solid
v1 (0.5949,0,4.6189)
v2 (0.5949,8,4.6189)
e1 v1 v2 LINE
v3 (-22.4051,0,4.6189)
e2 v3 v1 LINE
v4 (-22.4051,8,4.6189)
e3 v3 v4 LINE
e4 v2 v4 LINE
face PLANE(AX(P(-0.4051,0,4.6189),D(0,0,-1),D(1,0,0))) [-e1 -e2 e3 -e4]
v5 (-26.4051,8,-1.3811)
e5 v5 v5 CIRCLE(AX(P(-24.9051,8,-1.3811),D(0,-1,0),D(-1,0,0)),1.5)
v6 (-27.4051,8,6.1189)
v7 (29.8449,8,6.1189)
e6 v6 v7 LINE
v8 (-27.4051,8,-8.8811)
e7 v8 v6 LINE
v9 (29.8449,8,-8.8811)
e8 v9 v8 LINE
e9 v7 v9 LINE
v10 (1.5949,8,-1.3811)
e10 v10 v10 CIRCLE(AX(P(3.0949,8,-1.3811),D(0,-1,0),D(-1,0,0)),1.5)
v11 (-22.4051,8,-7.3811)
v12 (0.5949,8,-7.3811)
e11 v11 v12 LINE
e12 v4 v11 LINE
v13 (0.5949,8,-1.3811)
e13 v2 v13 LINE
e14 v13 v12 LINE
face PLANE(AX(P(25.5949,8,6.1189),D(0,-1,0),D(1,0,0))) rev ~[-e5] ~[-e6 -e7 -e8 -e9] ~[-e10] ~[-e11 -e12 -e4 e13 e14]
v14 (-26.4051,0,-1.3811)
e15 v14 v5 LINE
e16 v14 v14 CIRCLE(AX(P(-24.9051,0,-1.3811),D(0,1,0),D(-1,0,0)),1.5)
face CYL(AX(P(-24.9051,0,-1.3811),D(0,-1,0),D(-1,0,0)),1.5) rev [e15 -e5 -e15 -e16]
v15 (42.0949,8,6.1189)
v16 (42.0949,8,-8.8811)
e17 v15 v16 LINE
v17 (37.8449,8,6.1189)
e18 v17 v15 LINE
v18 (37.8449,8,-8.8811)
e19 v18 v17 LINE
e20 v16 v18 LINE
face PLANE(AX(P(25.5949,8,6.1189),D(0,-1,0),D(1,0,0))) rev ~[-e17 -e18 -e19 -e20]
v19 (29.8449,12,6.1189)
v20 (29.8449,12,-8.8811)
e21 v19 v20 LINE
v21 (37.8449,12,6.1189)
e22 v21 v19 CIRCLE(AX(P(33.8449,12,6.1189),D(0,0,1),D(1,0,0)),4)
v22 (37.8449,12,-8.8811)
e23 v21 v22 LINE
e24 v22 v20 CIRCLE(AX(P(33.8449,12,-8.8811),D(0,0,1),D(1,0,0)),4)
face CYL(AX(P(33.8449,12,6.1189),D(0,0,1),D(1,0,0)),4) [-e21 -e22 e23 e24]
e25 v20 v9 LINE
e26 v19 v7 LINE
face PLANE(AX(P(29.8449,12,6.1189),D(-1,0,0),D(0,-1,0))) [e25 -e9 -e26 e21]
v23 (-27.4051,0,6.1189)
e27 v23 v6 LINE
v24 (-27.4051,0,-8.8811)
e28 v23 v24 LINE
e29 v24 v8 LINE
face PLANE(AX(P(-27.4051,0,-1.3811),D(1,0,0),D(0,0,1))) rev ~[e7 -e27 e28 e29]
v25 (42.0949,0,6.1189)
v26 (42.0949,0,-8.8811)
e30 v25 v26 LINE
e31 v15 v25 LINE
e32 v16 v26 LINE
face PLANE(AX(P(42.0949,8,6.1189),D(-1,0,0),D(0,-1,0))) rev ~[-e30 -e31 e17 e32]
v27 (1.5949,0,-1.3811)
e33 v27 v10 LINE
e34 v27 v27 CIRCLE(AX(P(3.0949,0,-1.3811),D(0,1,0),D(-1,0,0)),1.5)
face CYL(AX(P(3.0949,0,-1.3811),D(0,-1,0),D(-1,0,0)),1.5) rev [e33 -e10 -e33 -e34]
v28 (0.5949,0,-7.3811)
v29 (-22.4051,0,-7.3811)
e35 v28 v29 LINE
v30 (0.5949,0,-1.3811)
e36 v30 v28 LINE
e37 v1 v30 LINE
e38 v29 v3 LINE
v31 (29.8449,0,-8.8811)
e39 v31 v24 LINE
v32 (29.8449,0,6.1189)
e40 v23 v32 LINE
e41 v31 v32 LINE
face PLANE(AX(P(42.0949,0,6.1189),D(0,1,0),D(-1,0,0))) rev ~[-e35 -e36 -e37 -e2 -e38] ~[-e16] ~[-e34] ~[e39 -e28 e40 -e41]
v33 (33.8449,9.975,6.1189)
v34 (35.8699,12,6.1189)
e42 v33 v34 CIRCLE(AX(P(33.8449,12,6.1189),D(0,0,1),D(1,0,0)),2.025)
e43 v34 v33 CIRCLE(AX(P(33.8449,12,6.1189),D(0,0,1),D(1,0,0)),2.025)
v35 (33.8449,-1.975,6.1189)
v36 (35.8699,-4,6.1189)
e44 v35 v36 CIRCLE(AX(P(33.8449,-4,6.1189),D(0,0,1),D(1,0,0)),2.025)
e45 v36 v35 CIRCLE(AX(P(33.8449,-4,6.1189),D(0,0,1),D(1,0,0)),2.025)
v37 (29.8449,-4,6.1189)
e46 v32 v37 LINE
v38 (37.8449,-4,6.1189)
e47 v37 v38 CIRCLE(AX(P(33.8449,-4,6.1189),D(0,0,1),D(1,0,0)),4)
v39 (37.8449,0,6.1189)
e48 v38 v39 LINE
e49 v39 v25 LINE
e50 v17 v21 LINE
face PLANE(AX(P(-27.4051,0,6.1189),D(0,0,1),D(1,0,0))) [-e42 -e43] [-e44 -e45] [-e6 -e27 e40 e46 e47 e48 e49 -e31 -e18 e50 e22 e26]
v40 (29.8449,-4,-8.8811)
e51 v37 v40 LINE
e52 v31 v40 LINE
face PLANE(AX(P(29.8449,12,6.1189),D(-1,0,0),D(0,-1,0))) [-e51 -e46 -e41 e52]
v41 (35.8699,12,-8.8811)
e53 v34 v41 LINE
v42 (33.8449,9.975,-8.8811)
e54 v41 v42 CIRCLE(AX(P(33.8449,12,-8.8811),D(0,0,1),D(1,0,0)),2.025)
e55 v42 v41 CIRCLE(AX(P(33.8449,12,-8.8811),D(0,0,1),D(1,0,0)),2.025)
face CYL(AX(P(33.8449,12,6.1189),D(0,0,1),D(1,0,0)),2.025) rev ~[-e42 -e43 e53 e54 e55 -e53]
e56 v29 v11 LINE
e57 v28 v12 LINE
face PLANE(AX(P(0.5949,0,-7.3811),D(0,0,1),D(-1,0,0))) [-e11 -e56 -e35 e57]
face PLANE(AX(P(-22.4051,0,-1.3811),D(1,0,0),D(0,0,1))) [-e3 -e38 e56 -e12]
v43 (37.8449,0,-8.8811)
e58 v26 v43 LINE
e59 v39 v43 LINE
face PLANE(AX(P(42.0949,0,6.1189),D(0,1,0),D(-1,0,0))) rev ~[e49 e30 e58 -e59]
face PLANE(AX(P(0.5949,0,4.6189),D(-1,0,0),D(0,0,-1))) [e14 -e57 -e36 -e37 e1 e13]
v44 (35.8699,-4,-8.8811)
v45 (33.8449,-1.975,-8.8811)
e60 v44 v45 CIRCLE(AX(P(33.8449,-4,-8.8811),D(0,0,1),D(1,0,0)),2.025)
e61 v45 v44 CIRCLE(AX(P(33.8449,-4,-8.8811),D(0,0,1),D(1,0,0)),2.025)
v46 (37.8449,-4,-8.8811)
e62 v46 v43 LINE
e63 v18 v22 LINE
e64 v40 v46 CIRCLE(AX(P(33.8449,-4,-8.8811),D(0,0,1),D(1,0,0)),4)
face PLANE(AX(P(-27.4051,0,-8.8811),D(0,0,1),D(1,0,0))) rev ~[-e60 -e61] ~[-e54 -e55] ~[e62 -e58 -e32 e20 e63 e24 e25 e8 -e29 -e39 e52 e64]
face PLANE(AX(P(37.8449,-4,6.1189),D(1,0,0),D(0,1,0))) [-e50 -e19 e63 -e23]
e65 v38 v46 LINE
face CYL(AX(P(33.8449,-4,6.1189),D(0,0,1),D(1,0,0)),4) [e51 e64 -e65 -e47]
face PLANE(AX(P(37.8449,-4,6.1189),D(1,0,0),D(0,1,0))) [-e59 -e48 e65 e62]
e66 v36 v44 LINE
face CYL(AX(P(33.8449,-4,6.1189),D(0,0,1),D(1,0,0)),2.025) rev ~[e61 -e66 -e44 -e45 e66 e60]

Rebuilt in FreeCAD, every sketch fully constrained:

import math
import FreeCAD as App
import Part
import Sketcher
from FreeCAD import Vector
Q = App.Units.Quantity

doc = App.newDocument("Part")
params = doc.addObject("Spreadsheet::Sheet", "Params")
for row, (alias, value) in enumerate([
    ("sketch1_diameter", "3 mm"),
    ("sketch1_width", "23 mm"),
    ("sketch1_height", "15 mm"),
    ("sketch1_height2", "12 mm"),
    ("sketch1_width2", "53 mm"),
    ("pad1_length", "8 mm"),
    ("sketch2_width", "16.5 mm"),
    ("sketch2_height", "8 mm"),
    ("pad2_length", "15 mm"),
    ("sketch3_radius", "4 mm"),
    ("sketch3_diameter", "4.05 mm"),
    ("sketch3_height", "16 mm"),
    ("pad3_length", "15 mm"),
], start=1):
    params.set(f"A{row}", alias)
    params.set(f"B{row}", "=" + value)
    params.setAlias(f"B{row}", alias)

body = doc.addObject("PartDesign::Body", "Body")

# Sketch on XZ plane
sketch1 = doc.addObject("Sketcher::SketchObject", "Sketch")
body.addObject(sketch1)
sketch1.AttachmentSupport = (doc.XZ_Plane, [""])
sketch1.MapMode = "FlatFace"
sketch1.addGeometry(Part.LineSegment(Vector(25.6, 6.1, 0), Vector(25.6, -8.9, 0)), False)
sketch1.addGeometry(Part.LineSegment(Vector(25.6, -8.9, 0), Vector(-27.4, -8.9, 0)), False)
sketch1.addGeometry(Part.LineSegment(Vector(-27.4, -8.9, 0), Vector(-27.4, 6.1, 0)), False)
sketch1.addGeometry(Part.LineSegment(Vector(-27.4, 6.1, 0), Vector(25.6, 6.1, 0)), False)
sketch1.addGeometry(Part.LineSegment(Vector(0.6, 4.6, 0), Vector(-22.4, 4.6, 0)), False)
sketch1.addGeometry(Part.LineSegment(Vector(-22.4, 4.6, 0), Vector(-22.4, -7.4, 0)), False)
sketch1.addGeometry(Part.LineSegment(Vector(-22.4, -7.4, 0), Vector(0.6, -7.4, 0)), False)
sketch1.addGeometry(Part.LineSegment(Vector(0.6, -7.4, 0), Vector(0.6, -1.4, 0)), False)
sketch1.addGeometry(Part.LineSegment(Vector(0.6, -1.4, 0), Vector(0.6, 4.6, 0)), False)
sketch1.addGeometry(Part.Circle(Vector(3.1, -1.4, 0), Vector(0, 0, 1), 1.5), False)
sketch1.addGeometry(Part.Circle(Vector(-24.9, -1.4, 0), Vector(0, 0, 1), 1.5), False)
sketch1.addConstraint(Sketcher.Constraint("Coincident", 0, 2, 1, 1))
sketch1.addConstraint(Sketcher.Constraint("Coincident", 1, 2, 2, 1))
sketch1.addConstraint(Sketcher.Constraint("Coincident", 2, 2, 3, 1))
sketch1.addConstraint(Sketcher.Constraint("Coincident", 3, 2, 0, 1))
sketch1.addConstraint(Sketcher.Constraint("Coincident", 4, 2, 5, 1))
sketch1.addConstraint(Sketcher.Constraint("Coincident", 5, 2, 6, 1))
sketch1.addConstraint(Sketcher.Constraint("Coincident", 6, 2, 7, 1))
sketch1.addConstraint(Sketcher.Constraint("Coincident", 7, 2, 8, 1))
sketch1.addConstraint(Sketcher.Constraint("Coincident", 8, 2, 4, 1))
sketch1.addConstraint(Sketcher.Constraint("Vertical", 0))
sketch1.addConstraint(Sketcher.Constraint("Horizontal", 1))
sketch1.addConstraint(Sketcher.Constraint("Vertical", 2))
sketch1.addConstraint(Sketcher.Constraint("Horizontal", 3))
sketch1.addConstraint(Sketcher.Constraint("Horizontal", 4))
sketch1.addConstraint(Sketcher.Constraint("Vertical", 5))
sketch1.addConstraint(Sketcher.Constraint("Horizontal", 6))
sketch1.addConstraint(Sketcher.Constraint("Vertical", 7))
sketch1.addConstraint(Sketcher.Constraint("Vertical", 8))
sketch1.addConstraint(Sketcher.Constraint("Equal", 9, 10))
sketch1.addConstraint(Sketcher.Constraint("Horizontal", 9, 3, 10, 3))
sketch1.addConstraint(Sketcher.Constraint("Horizontal", 10, 3, 7, 2))
sketch1.addConstraint(Sketcher.Constraint("Equal", 7, 8))
sketch1.addConstraint(Sketcher.Constraint("Diameter", 9, Q("3 mm")))
sketch1.addConstraint(Sketcher.Constraint("DistanceX", 4, 2, 4, 1, Q("23 mm")))
sketch1.addConstraint(Sketcher.Constraint("DistanceY", 0, 2, 0, 1, Q("15 mm")))
sketch1.addConstraint(Sketcher.Constraint("DistanceY", 5, 2, 5, 1, Q("12 mm")))
sketch1.addConstraint(Sketcher.Constraint("DistanceX", 2, 2, 4, 2, Q("5 mm")))
sketch1.addConstraint(Sketcher.Constraint("DistanceX", 1, 2, 1, 1, Q("53 mm")))
sketch1.addConstraint(Sketcher.Constraint("DistanceX", 10, 3, 9, 3, Q("28 mm")))
sketch1.addConstraint(Sketcher.Constraint("DistanceX", 9, 3, 0, 2, Q("22.5 mm")))
sketch1.addConstraint(Sketcher.Constraint("DistanceY", 0, 2, 9, 3, Q("7.5 mm")))
sketch1.addConstraint(Sketcher.Constraint("DistanceX", -1, 1, 9, 3, Q("3.095 mm")))
sketch1.addConstraint(Sketcher.Constraint("DistanceY", 9, 3, -1, 1, Q("1.381 mm")))
sketch1.setExpression("Constraints[22]", "Params.sketch1_diameter")
sketch1.setExpression("Constraints[23]", "Params.sketch1_width")
sketch1.setExpression("Constraints[24]", "Params.sketch1_height")
sketch1.setExpression("Constraints[25]", "Params.sketch1_height2")
sketch1.setExpression("Constraints[27]", "Params.sketch1_width2")
pad1 = doc.addObject("PartDesign::Pad", "Pad")
body.addObject(pad1)
pad1.Profile = sketch1
pad1.setExpression("Length", "Params.pad1_length")
pad1.Reversed = True

# Sketch on XY plane
sketch2 = doc.addObject("Sketcher::SketchObject", "Sketch001")
body.addObject(sketch2)
sketch2.AttachmentSupport = (doc.XY_Plane, [""])
sketch2.MapMode = "FlatFace"
sketch2.AttachmentOffset = App.Placement(Vector(0, 0, 6.1189), App.Rotation())
sketch2.addGeometry(Part.LineSegment(Vector(42, 8, 0), Vector(26, 8, 0)), False)
sketch2.addGeometry(Part.LineSegment(Vector(26, 8, 0), Vector(26, 0, 0)), False)
sketch2.addGeometry(Part.LineSegment(Vector(26, 0, 0), Vector(42, 0, 0)), False)
sketch2.addGeometry(Part.LineSegment(Vector(42, 0, 0), Vector(42, 8, 0)), False)
sketch2.addConstraint(Sketcher.Constraint("Coincident", 0, 2, 1, 1))
sketch2.addConstraint(Sketcher.Constraint("Coincident", 1, 2, 2, 1))
sketch2.addConstraint(Sketcher.Constraint("Coincident", 2, 2, 3, 1))
sketch2.addConstraint(Sketcher.Constraint("Coincident", 3, 2, 0, 1))
sketch2.addConstraint(Sketcher.Constraint("Horizontal", 0))
sketch2.addConstraint(Sketcher.Constraint("Vertical", 1))
sketch2.addConstraint(Sketcher.Constraint("Horizontal", 2))
sketch2.addConstraint(Sketcher.Constraint("Vertical", 3))
sketch2.addConstraint(Sketcher.Constraint("PointOnObject", 1, 2, -1))
sketch2.addConstraint(Sketcher.Constraint("DistanceX", 0, 2, 0, 1, Q("16.5 mm")))
sketch2.addConstraint(Sketcher.Constraint("DistanceY", 1, 2, 1, 1, Q("8 mm")))
sketch2.addConstraint(Sketcher.Constraint("DistanceX", -1, 1, 0, 2, Q("25.595 mm")))
sketch2.setExpression("Constraints[9]", "Params.sketch2_width")
sketch2.setExpression("Constraints[10]", "Params.sketch2_height")
pad2 = doc.addObject("PartDesign::Pad", "Pad001")
body.addObject(pad2)
pad2.Profile = sketch2
pad2.setExpression("Length", "Params.pad2_length")
pad2.Reversed = True

# Sketch on XY plane
sketch3 = doc.addObject("Sketcher::SketchObject", "Sketch002")
body.addObject(sketch3)
sketch3.AttachmentSupport = (doc.XY_Plane, [""])
sketch3.MapMode = "FlatFace"
sketch3.AttachmentOffset = App.Placement(Vector(0, 0, 6.1189), App.Rotation())
sketch3.addGeometry(Part.LineSegment(Vector(29.8, 12, 0), Vector(29.8, -4, 0)), False)
sketch3.addGeometry(Part.ArcOfCircle(Part.Circle(Vector(33.8, -4, 0), Vector(0, 0, 1), 4), math.radians(180), math.radians(360)), False)
sketch3.addGeometry(Part.LineSegment(Vector(37.8, -4, 0), Vector(37.8, 12, 0)), False)
sketch3.addGeometry(Part.ArcOfCircle(Part.Circle(Vector(33.8, 12, 0), Vector(0, 0, 1), 4), math.radians(0), math.radians(180)), False)
sketch3.addGeometry(Part.Circle(Vector(33.8, -4, 0), Vector(0, 0, 1), 2), False)
sketch3.addGeometry(Part.Circle(Vector(33.8, 12, 0), Vector(0, 0, 1), 2), False)
sketch3.addConstraint(Sketcher.Constraint("Tangent", 0, 2, 1, 1))
sketch3.addConstraint(Sketcher.Constraint("Tangent", 1, 2, 2, 1))
sketch3.addConstraint(Sketcher.Constraint("Tangent", 2, 2, 3, 1))
sketch3.addConstraint(Sketcher.Constraint("Tangent", 3, 2, 0, 1))
sketch3.addConstraint(Sketcher.Constraint("Vertical", 0))
sketch3.addConstraint(Sketcher.Constraint("Vertical", 2))
sketch3.addConstraint(Sketcher.Constraint("Coincident", 4, 3, 1, 3))
sketch3.addConstraint(Sketcher.Constraint("Coincident", 5, 3, 3, 3))
sketch3.addConstraint(Sketcher.Constraint("Equal", 4, 5))
sketch3.addConstraint(Sketcher.Constraint("Radius", 1, Q("4 mm")))
sketch3.addConstraint(Sketcher.Constraint("Diameter", 4, Q("4.05 mm")))
sketch3.addConstraint(Sketcher.Constraint("DistanceY", 0, 2, 0, 1, Q("16 mm")))
sketch3.addConstraint(Sketcher.Constraint("DistanceY", 1, 3, -1, 1, Q("4 mm")))
sketch3.addConstraint(Sketcher.Constraint("DistanceX", -1, 1, 1, 3, Q("33.845 mm")))
sketch3.setExpression("Constraints[9]", "Params.sketch3_radius")
sketch3.setExpression("Constraints[10]", "Params.sketch3_diameter")
sketch3.setExpression("Constraints[11]", "Params.sketch3_height")
pad3 = doc.addObject("PartDesign::Pad", "Pad002")
body.addObject(pad3)
pad3.Profile = sketch3
pad3.setExpression("Length", "Params.pad3_length")
pad3.Reversed = True

doc.recompute()
